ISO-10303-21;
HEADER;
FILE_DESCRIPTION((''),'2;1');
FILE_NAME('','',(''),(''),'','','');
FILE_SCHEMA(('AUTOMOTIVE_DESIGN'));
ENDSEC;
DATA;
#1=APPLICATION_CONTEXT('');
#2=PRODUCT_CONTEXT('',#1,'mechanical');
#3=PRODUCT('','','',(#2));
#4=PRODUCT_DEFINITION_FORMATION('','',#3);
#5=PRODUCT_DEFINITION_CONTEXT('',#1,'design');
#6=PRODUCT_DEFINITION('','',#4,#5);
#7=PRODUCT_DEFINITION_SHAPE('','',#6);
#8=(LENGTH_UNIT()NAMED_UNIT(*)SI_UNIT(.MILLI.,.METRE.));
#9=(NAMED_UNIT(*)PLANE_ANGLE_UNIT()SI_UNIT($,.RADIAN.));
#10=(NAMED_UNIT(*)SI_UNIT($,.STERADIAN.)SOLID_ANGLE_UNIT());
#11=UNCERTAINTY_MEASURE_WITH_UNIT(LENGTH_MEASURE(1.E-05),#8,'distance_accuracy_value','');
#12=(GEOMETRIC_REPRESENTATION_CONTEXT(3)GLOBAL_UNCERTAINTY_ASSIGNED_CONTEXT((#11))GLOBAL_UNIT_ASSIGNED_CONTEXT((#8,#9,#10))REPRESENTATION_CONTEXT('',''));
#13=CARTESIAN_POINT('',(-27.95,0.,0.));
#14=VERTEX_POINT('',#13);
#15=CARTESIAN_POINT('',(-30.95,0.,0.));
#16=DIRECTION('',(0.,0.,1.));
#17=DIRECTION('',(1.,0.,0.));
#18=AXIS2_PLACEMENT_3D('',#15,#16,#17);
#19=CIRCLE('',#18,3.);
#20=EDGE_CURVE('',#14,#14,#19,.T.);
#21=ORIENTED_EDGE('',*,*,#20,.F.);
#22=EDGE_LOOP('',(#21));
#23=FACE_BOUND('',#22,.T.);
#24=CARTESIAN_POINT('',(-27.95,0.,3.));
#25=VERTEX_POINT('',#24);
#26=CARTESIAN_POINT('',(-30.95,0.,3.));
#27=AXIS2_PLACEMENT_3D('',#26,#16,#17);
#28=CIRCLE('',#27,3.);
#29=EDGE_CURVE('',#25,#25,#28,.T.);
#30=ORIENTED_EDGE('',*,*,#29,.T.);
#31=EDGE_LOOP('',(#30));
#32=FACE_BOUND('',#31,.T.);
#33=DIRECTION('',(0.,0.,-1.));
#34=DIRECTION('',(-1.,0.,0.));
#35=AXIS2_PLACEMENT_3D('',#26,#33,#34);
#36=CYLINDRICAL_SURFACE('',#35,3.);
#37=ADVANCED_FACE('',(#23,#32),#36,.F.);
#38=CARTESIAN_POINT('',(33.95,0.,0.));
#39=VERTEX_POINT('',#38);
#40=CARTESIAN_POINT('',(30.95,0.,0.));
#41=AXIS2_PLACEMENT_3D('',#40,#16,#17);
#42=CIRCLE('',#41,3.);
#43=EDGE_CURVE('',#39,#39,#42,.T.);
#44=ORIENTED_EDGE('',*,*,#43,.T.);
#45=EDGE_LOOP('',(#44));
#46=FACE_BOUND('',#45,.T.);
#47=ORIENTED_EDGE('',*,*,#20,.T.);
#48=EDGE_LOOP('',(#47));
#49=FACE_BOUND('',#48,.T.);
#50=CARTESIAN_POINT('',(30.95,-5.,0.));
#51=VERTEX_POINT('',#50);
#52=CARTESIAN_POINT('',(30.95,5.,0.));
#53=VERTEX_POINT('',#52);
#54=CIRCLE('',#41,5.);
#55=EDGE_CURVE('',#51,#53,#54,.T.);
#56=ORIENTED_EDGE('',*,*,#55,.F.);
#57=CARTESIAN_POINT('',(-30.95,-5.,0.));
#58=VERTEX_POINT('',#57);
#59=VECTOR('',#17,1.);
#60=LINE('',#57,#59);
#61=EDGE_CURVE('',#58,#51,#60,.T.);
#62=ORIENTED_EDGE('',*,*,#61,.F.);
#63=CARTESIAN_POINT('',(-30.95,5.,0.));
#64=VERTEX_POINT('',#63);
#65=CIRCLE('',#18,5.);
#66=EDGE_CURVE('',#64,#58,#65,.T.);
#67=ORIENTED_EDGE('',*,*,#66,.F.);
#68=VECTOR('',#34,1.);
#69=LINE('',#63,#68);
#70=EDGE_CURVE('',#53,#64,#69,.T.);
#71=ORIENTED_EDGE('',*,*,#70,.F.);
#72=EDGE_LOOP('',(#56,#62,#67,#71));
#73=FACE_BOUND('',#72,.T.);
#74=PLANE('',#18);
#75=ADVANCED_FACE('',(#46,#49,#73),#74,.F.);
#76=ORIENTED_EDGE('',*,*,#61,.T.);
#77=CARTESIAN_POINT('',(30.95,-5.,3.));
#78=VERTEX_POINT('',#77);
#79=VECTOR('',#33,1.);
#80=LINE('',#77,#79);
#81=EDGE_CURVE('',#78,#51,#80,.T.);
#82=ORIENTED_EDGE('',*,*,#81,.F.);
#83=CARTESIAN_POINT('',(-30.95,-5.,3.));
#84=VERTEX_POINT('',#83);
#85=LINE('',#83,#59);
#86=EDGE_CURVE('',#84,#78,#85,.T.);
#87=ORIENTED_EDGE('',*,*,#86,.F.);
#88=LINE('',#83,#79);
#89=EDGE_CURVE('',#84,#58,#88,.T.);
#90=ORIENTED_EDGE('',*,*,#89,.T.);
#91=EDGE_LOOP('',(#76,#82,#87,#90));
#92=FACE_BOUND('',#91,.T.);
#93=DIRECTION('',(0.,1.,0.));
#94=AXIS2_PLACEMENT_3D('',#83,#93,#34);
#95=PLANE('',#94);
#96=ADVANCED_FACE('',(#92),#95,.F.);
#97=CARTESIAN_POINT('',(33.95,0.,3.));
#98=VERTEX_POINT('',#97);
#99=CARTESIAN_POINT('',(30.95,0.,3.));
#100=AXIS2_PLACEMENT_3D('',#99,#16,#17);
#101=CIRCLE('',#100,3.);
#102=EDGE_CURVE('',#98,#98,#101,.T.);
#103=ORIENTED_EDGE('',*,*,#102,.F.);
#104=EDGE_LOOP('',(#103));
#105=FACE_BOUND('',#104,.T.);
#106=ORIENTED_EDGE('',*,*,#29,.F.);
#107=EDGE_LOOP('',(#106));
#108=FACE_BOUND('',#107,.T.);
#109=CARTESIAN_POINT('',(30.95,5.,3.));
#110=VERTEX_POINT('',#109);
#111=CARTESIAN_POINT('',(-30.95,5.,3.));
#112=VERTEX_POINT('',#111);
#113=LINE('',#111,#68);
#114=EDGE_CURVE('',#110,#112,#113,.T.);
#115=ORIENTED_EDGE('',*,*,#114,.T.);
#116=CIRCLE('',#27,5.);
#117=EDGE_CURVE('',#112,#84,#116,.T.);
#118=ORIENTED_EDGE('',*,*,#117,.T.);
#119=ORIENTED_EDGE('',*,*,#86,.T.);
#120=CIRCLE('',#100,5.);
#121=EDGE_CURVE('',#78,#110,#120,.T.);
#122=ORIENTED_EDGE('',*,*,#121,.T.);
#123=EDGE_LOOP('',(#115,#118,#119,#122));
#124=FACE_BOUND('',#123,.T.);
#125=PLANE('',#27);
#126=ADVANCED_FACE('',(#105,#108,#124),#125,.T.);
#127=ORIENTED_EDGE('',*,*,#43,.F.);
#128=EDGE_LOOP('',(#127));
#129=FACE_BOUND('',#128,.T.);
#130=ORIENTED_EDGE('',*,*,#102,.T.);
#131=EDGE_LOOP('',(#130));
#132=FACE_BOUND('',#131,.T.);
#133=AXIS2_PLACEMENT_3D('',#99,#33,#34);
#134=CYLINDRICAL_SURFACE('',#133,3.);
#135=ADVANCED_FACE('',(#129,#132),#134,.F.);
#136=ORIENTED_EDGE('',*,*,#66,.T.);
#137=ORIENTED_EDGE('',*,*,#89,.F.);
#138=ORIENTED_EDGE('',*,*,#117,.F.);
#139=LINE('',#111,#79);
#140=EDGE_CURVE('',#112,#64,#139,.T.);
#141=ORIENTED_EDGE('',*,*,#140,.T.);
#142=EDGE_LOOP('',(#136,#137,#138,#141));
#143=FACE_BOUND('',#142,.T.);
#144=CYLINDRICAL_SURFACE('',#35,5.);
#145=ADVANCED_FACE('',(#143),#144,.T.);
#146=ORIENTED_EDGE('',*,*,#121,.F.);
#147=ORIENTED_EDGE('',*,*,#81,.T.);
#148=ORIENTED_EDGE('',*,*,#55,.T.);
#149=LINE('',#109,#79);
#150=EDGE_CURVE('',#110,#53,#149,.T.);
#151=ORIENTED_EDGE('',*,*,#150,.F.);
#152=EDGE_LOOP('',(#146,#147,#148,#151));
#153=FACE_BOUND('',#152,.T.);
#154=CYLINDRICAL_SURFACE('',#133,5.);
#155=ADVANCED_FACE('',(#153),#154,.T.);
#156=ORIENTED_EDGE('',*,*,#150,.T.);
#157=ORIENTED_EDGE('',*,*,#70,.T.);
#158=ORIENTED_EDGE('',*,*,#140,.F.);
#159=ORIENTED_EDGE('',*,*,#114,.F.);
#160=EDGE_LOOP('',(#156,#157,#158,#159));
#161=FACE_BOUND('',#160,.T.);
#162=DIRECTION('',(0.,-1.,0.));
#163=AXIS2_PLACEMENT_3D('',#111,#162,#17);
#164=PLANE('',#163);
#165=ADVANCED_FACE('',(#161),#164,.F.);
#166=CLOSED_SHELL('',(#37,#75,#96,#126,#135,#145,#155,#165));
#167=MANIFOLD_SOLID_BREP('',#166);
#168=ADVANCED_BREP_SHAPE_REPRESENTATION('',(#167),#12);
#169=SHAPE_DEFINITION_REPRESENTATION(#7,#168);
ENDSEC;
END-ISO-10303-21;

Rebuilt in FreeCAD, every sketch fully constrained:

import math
import FreeCAD as App
import Part
import Sketcher
from FreeCAD import Vector

doc = App.newDocument("Part")
body = doc.addObject("PartDesign::Body", "Body")

sketch1 = body.newObject("Sketcher::SketchObject", "Sketch")
sketch1.AttachmentSupport = (doc.getObject("XY_Plane"), [""])
sketch1.MapMode = "FlatFace"
sketch1.addGeometry([
    Part.LineSegment(Vector(30.9, 5, 0), Vector(-30.9, 5, 0)),
    Part.ArcOfCircle(Part.Circle(Vector(-30.9, 0, 0), Vector(0, 0, 1), 5), math.radians(90), math.radians(270)),
    Part.LineSegment(Vector(-30.9, -5, 0), Vector(30.9, -5, 0)),
    Part.ArcOfCircle(Part.Circle(Vector(30.9, 0, 0), Vector(0, 0, 1), 5), math.radians(-90), math.radians(90)),
    Part.Circle(Vector(30.9, 0, 0), Vector(0, 0, 1), 3),
    Part.Circle(Vector(-30.9, 0, 0), Vector(0, 0, 1), 3),
], False)
sketch1.addConstraint([
    Sketcher.Constraint("Tangent", 0, 2, 1, 1),
    Sketcher.Constraint("Tangent", 1, 2, 2, 1),
    Sketcher.Constraint("Tangent", 2, 2, 3, 1),
    Sketcher.Constraint("Tangent", 3, 2, 0, 1),
    Sketcher.Constraint("Horizontal", 0),
    Sketcher.Constraint("Horizontal", 2),
    Sketcher.Constraint("Coincident", 4, 3, 3, 3),
    Sketcher.Constraint("Coincident", 5, 3, 1, 3),
    Sketcher.Constraint("Equal", 4, 5),
    Sketcher.Constraint("Symmetric", 1, 3, 3, 3, -1, 1),
    Sketcher.Constraint("Diameter", 4, 6.0),
    Sketcher.Constraint("Radius", 1, 5.0),
    Sketcher.Constraint("DistanceX", 0, 2, 0, 1, 61.9),
])
pad1 = body.newObject("PartDesign::Pad", "Pad")
pad1.Profile = sketch1
pad1.Length = 3

doc.recompute()
